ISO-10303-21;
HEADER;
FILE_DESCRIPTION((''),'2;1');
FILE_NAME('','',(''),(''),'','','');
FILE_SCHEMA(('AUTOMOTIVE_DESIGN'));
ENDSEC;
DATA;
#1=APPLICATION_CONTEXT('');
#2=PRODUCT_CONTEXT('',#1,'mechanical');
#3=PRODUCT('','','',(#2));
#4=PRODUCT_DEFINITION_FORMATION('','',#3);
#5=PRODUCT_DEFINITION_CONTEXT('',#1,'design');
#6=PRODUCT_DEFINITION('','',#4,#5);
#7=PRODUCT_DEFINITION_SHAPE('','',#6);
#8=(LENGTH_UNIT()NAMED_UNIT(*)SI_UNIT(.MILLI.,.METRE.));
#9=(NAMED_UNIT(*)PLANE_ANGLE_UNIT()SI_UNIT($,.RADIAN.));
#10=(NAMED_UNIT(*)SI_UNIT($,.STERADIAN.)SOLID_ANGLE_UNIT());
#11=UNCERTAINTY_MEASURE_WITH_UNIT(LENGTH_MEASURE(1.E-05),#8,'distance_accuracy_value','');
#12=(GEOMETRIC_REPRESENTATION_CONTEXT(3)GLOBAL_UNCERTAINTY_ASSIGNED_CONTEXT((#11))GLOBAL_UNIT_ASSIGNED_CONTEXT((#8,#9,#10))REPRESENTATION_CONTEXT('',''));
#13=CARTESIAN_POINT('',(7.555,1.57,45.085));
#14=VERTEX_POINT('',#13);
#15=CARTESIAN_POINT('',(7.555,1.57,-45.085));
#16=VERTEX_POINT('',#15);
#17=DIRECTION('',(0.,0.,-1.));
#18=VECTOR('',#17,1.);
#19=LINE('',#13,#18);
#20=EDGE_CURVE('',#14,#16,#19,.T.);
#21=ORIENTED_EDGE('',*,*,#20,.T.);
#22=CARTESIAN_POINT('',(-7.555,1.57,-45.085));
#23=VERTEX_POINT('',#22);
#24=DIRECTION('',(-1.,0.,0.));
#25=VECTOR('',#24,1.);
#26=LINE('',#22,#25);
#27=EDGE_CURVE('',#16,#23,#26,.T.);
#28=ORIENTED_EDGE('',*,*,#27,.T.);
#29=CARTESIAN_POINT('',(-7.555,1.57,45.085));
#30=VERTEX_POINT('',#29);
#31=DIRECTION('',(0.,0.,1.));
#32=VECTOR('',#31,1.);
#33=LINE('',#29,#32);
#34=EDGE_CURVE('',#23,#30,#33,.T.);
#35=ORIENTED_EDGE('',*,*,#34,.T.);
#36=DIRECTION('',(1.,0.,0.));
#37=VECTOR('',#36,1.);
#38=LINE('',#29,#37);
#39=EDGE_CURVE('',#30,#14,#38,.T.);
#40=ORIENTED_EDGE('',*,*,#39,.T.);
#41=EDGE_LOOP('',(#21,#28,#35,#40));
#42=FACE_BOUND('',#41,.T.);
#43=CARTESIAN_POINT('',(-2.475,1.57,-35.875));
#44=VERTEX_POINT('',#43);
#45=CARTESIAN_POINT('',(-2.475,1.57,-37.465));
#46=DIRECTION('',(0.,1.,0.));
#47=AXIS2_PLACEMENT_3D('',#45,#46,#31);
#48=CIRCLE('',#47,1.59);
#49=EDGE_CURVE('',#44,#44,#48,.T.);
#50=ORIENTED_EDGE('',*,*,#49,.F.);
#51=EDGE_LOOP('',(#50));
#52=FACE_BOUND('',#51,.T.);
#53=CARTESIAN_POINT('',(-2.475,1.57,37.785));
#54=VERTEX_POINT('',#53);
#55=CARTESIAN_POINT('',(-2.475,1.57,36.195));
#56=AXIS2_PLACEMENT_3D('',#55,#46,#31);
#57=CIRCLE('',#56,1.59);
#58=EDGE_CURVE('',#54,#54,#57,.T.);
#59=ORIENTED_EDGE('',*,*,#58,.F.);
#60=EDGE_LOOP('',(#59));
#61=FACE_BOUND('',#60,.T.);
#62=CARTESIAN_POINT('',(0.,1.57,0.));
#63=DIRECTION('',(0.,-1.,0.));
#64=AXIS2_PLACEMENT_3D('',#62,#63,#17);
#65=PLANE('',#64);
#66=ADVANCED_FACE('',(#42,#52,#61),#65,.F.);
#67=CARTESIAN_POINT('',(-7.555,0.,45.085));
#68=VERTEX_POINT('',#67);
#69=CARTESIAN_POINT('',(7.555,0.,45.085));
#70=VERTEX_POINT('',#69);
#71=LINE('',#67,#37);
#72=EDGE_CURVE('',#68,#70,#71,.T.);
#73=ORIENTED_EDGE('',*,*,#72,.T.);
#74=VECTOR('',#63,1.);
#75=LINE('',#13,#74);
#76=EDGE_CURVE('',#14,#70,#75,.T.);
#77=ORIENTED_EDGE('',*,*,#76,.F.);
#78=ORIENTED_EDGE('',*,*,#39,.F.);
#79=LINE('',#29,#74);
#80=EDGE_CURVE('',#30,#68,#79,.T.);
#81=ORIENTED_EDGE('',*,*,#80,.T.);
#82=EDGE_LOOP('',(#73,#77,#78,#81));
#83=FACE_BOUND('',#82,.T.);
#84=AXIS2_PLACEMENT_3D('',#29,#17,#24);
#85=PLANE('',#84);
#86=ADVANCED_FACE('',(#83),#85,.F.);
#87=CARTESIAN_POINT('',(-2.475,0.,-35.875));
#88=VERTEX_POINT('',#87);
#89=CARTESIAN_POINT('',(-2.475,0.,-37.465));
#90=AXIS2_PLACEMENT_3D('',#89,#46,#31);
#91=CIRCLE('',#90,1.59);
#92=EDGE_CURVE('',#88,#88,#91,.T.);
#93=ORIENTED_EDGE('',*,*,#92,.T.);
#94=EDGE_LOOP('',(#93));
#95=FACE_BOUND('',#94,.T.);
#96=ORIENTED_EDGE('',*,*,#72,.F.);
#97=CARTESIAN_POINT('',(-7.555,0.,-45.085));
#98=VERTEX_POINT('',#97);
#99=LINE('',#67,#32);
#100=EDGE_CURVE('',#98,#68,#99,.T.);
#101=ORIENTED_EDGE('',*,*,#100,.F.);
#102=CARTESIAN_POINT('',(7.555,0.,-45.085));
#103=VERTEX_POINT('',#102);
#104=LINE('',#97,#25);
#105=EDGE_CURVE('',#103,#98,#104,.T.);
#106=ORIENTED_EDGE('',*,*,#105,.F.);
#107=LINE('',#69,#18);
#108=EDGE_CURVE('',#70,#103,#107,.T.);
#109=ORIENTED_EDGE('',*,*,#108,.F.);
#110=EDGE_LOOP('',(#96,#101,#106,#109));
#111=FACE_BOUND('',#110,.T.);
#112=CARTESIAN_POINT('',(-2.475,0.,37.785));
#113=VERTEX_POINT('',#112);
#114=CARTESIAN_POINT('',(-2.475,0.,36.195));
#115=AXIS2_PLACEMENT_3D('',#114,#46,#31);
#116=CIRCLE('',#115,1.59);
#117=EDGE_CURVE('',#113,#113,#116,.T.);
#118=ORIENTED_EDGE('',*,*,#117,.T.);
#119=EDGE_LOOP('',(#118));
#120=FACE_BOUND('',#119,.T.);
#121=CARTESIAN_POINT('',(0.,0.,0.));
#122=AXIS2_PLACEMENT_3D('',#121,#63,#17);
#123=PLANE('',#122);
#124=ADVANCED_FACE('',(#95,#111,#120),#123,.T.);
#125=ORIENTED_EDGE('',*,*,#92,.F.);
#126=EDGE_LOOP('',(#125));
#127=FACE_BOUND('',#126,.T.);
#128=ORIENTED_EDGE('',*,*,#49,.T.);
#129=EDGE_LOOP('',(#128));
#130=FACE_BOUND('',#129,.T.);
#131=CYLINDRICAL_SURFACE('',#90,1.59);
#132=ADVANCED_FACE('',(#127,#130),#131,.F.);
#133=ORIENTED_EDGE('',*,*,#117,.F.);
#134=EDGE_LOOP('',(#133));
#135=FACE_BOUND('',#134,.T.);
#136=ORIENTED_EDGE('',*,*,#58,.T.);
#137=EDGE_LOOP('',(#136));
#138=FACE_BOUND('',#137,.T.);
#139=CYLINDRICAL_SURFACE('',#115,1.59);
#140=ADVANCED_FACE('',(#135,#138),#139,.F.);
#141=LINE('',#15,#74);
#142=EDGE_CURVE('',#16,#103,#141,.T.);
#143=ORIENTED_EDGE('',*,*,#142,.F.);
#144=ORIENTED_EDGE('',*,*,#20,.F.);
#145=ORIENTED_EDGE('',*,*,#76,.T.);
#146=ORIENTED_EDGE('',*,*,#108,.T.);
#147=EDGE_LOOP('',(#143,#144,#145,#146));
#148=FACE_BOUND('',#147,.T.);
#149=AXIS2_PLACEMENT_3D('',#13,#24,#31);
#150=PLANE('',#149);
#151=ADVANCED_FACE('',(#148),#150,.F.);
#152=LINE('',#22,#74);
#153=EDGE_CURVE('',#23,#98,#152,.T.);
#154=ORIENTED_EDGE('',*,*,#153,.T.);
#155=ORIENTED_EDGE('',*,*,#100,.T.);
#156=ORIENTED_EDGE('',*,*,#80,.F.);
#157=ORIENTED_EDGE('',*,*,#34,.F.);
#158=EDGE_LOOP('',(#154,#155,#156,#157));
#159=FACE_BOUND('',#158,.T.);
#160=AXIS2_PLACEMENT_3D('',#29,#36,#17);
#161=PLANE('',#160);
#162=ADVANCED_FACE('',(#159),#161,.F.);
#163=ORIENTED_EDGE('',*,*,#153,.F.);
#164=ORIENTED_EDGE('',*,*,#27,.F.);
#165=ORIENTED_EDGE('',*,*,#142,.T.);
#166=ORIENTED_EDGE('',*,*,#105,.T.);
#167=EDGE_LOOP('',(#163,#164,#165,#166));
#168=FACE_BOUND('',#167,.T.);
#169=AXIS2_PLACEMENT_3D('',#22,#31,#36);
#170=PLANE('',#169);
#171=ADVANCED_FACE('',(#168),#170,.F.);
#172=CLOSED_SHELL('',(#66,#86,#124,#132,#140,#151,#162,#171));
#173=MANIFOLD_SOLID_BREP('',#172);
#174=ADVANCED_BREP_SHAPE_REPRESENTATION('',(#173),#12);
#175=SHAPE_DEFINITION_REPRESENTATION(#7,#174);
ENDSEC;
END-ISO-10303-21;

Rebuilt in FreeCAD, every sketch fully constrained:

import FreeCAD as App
import Part
import Sketcher
from FreeCAD import Vector
Q = App.Units.Quantity


def add_polygon(sketch, points):
    """Adds a closed chain of lines whose ends are joined by coincident constraints."""
    first, n = sketch.GeometryCount, len(points)
    for a, b in zip(points, points[1:] + points[:1]):
        sketch.addGeometry(Part.LineSegment(App.Vector(*a, 0), App.Vector(*b, 0)), False)
    for i in range(n):
        sketch.addConstraint(Sketcher.Constraint("Coincident", first + i, 2, first + (i + 1) % n, 1))

doc = App.newDocument("Part")
body = doc.addObject("PartDesign::Body", "Body")

# Sketch on XZ plane
sketch1 = body.newObject("Sketcher::SketchObject", "Sketch")
sketch1.AttachmentSupport = (doc.getObject("XZ_Plane"), [""])
sketch1.MapMode = "FlatFace"
add_polygon(sketch1, [(-8, -45), (-8, 45), (8, 45), (8, -45)])  # lines 0-3
sketch1.addConstraint([
    Sketcher.Constraint("Vertical", 0),
    Sketcher.Constraint("Horizontal", 1),
    Sketcher.Constraint("Vertical", 2),
    Sketcher.Constraint("Horizontal", 3),
    Sketcher.Constraint("Symmetric", 0, 2, 2, 2, -1, 1),
    Sketcher.Constraint("DistanceY", 0, 1, 0, 2, Q("3.55 in")),
    Sketcher.Constraint("DistanceX", 1, 1, 1, 2, Q("15.11 mm")),
])
pad1 = body.newObject("PartDesign::Pad", "Pad")
pad1.Profile = sketch1
pad1.Length = 1.57
pad1.Reversed = True

# Sketch on XZ plane
sketch2 = body.newObject("Sketcher::SketchObject", "Sketch001")
sketch2.AttachmentSupport = (doc.getObject("XZ_Plane"), [""])
sketch2.MapMode = "FlatFace"
sketch2.AttachmentOffset = App.Placement(Vector(0, 0, -1.57), App.Rotation())
sketch2.addGeometry([
    Part.Circle(Vector(-2.5, 36.2, 0), Vector(0, 0, 1), 1.6),
    Part.Circle(Vector(-2.5, -37.5, 0), Vector(0, 0, 1), 1.6),
], False)
sketch2.addConstraint([
    Sketcher.Constraint("Equal", 0, 1),
    Sketcher.Constraint("Vertical", 0, 3, 1, 3),
    Sketcher.Constraint("DistanceY", 1, 3, 0, 3, Q("2.9 in")),
    Sketcher.Constraint("Diameter", 0, Q("3.18 mm")),
    Sketcher.Constraint("DistanceY", -1, 1, 0, 3, Q("1.425 in")),
    Sketcher.Constraint("DistanceX", 0, 3, -1, 1, Q("2.475 mm")),
])
pocket1 = body.newObject("PartDesign::Pocket", "Pocket")
pocket1.Profile = sketch2
pocket1.Type = "ThroughAll"
pocket1.Reversed = True

doc.recompute()
